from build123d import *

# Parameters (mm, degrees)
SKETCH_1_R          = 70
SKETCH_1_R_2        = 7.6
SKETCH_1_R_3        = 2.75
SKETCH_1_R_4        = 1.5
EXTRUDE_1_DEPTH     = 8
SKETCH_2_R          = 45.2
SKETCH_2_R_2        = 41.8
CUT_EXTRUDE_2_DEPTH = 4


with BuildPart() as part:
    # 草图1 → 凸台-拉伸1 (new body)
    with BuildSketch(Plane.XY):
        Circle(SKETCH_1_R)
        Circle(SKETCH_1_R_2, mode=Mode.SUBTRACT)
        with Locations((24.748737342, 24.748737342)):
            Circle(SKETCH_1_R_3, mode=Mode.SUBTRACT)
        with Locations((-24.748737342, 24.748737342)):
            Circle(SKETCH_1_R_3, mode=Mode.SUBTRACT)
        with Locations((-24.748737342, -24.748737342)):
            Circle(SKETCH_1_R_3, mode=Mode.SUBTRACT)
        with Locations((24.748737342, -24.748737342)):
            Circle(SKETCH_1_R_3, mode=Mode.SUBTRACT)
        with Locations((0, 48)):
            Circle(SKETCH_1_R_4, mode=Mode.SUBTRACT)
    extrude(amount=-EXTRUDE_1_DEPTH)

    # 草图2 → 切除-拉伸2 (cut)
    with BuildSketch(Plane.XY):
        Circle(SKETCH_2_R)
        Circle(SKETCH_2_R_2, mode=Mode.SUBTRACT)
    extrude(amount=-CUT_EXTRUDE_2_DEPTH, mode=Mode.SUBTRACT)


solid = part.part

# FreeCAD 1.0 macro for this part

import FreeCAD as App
import Part
import Sketcher
from FreeCAD import Vector
Q = App.Units.Quantity

doc = App.newDocument("Part")
params = doc.addObject("Spreadsheet::Sheet", "Params")
for row, (alias, value) in enumerate([
    ("sketch1_diameter", "140 mm"),
    ("sketch1_diameter2", "3 mm"),
    ("sketch1_diameter3", "5.5 mm"),
    ("sketch1_diameter4", "15.2 mm"),
    ("pad1_length", "8 mm"),
    ("sketch2_diameter", "90.4 mm"),
    ("sketch2_diameter2", "83.6 mm"),
    ("pocket1_length", "4 mm"),
], start=1):
    params.set(f"A{row}", alias)
    params.set(f"B{row}", "=" + value)
    params.setAlias(f"B{row}", alias)

body = doc.addObject("PartDesign::Body", "Body")

# Sketch on XY plane
sketch1 = body.newObject("Sketcher::SketchObject", "Sketch")
sketch1.AttachmentSupport = (doc.getObject("XY_Plane"), [""])
sketch1.MapMode = "FlatFace"
sketch1.addGeometry([
    Part.Circle(Vector(0, 0, 0), Vector(0, 0, 1), 70),  # 0
    Part.Circle(Vector(-24.7, -24.7, 0), Vector(0, 0, 1), 2.8),  # 1
    Part.Circle(Vector(0, 0, 0), Vector(0, 0, 1), 7.6),  # 2
    Part.Circle(Vector(24.7, -24.7, 0), Vector(0, 0, 1), 2.8),  # 3
    Part.Circle(Vector(-24.7, 24.7, 0), Vector(0, 0, 1), 2.8),  # 4
    Part.Circle(Vector(0, 48, 0), Vector(0, 0, 1), 1.5),  # 5
    Part.Circle(Vector(24.7, 24.7, 0), Vector(0, 0, 1), 2.8),  # 6
], False)
sketch1.addConstraint([
    Sketcher.Constraint("Coincident", 0, 3, -1, 1),
    Sketcher.Constraint("Coincident", 2, 3, -1, 1),
    Sketcher.Constraint("Equal", 1, 3),
    Sketcher.Constraint("Equal", 3, 4),
    Sketcher.Constraint("Equal", 4, 6),
    Sketcher.Constraint("Symmetric", 3, 3, 4, 3, -1, 1),
    Sketcher.Constraint("Symmetric", 1, 3, 6, 3, -1, 1),
    Sketcher.Constraint("Symmetric", 1, 3, 3, 3, -2),
    Sketcher.Constraint("PointOnObject", 5, 3, -2),
    Sketcher.Constraint("Diameter", 0, Q("140 mm")),
    Sketcher.Constraint("Diameter", 5, Q("3 mm")),
    Sketcher.Constraint("Diameter", 1, Q("5.5 mm")),
    Sketcher.Constraint("Diameter", 2, Q("15.2 mm")),
    Sketcher.Constraint("DistanceY", -1, 1, 5, 3, Q("48 mm")),
    Sketcher.Constraint("DistanceX", 1, 3, -1, 1, Q("24.748737 mm")),
    Sketcher.Constraint("DistanceY", 1, 3, -1, 1, Q("24.748737 mm")),
])
sketch1.setExpression("Constraints[9]", "Params.sketch1_diameter")
sketch1.setExpression("Constraints[10]", "Params.sketch1_diameter2")
sketch1.setExpression("Constraints[11]", "Params.sketch1_diameter3")
sketch1.setExpression("Constraints[12]", "Params.sketch1_diameter4")
pad1 = body.newObject("PartDesign::Pad", "Pad")
pad1.Profile = sketch1
pad1.setExpression("Length", "Params.pad1_length")
pad1.Reversed = True

# Sketch on XY plane
sketch2 = body.newObject("Sketcher::SketchObject", "Sketch001")
sketch2.AttachmentSupport = (doc.getObject("XY_Plane"), [""])
sketch2.MapMode = "FlatFace"
sketch2.addGeometry([
    Part.Circle(Vector(0, 0, 0), Vector(0, 0, 1), 45),
    Part.Circle(Vector(0, 0, 0), Vector(0, 0, 1), 42),
], False)
sketch2.addConstraint([
    Sketcher.Constraint("Coincident", 0, 3, -1, 1),
    Sketcher.Constraint("Coincident", 1, 3, -1, 1),
    Sketcher.Constraint("Diameter", 0, Q("90.4 mm")),
    Sketcher.Constraint("Diameter", 1, Q("83.6 mm")),
])
sketch2.setExpression("Constraints[2]", "Params.sketch2_diameter")
sketch2.setExpression("Constraints[3]", "Params.sketch2_diameter2")
pocket1 = body.newObject("PartDesign::Pocket", "Pocket")
pocket1.Profile = sketch2
pocket1.setExpression("Length", "Params.pocket1_length")

doc.recompute()
